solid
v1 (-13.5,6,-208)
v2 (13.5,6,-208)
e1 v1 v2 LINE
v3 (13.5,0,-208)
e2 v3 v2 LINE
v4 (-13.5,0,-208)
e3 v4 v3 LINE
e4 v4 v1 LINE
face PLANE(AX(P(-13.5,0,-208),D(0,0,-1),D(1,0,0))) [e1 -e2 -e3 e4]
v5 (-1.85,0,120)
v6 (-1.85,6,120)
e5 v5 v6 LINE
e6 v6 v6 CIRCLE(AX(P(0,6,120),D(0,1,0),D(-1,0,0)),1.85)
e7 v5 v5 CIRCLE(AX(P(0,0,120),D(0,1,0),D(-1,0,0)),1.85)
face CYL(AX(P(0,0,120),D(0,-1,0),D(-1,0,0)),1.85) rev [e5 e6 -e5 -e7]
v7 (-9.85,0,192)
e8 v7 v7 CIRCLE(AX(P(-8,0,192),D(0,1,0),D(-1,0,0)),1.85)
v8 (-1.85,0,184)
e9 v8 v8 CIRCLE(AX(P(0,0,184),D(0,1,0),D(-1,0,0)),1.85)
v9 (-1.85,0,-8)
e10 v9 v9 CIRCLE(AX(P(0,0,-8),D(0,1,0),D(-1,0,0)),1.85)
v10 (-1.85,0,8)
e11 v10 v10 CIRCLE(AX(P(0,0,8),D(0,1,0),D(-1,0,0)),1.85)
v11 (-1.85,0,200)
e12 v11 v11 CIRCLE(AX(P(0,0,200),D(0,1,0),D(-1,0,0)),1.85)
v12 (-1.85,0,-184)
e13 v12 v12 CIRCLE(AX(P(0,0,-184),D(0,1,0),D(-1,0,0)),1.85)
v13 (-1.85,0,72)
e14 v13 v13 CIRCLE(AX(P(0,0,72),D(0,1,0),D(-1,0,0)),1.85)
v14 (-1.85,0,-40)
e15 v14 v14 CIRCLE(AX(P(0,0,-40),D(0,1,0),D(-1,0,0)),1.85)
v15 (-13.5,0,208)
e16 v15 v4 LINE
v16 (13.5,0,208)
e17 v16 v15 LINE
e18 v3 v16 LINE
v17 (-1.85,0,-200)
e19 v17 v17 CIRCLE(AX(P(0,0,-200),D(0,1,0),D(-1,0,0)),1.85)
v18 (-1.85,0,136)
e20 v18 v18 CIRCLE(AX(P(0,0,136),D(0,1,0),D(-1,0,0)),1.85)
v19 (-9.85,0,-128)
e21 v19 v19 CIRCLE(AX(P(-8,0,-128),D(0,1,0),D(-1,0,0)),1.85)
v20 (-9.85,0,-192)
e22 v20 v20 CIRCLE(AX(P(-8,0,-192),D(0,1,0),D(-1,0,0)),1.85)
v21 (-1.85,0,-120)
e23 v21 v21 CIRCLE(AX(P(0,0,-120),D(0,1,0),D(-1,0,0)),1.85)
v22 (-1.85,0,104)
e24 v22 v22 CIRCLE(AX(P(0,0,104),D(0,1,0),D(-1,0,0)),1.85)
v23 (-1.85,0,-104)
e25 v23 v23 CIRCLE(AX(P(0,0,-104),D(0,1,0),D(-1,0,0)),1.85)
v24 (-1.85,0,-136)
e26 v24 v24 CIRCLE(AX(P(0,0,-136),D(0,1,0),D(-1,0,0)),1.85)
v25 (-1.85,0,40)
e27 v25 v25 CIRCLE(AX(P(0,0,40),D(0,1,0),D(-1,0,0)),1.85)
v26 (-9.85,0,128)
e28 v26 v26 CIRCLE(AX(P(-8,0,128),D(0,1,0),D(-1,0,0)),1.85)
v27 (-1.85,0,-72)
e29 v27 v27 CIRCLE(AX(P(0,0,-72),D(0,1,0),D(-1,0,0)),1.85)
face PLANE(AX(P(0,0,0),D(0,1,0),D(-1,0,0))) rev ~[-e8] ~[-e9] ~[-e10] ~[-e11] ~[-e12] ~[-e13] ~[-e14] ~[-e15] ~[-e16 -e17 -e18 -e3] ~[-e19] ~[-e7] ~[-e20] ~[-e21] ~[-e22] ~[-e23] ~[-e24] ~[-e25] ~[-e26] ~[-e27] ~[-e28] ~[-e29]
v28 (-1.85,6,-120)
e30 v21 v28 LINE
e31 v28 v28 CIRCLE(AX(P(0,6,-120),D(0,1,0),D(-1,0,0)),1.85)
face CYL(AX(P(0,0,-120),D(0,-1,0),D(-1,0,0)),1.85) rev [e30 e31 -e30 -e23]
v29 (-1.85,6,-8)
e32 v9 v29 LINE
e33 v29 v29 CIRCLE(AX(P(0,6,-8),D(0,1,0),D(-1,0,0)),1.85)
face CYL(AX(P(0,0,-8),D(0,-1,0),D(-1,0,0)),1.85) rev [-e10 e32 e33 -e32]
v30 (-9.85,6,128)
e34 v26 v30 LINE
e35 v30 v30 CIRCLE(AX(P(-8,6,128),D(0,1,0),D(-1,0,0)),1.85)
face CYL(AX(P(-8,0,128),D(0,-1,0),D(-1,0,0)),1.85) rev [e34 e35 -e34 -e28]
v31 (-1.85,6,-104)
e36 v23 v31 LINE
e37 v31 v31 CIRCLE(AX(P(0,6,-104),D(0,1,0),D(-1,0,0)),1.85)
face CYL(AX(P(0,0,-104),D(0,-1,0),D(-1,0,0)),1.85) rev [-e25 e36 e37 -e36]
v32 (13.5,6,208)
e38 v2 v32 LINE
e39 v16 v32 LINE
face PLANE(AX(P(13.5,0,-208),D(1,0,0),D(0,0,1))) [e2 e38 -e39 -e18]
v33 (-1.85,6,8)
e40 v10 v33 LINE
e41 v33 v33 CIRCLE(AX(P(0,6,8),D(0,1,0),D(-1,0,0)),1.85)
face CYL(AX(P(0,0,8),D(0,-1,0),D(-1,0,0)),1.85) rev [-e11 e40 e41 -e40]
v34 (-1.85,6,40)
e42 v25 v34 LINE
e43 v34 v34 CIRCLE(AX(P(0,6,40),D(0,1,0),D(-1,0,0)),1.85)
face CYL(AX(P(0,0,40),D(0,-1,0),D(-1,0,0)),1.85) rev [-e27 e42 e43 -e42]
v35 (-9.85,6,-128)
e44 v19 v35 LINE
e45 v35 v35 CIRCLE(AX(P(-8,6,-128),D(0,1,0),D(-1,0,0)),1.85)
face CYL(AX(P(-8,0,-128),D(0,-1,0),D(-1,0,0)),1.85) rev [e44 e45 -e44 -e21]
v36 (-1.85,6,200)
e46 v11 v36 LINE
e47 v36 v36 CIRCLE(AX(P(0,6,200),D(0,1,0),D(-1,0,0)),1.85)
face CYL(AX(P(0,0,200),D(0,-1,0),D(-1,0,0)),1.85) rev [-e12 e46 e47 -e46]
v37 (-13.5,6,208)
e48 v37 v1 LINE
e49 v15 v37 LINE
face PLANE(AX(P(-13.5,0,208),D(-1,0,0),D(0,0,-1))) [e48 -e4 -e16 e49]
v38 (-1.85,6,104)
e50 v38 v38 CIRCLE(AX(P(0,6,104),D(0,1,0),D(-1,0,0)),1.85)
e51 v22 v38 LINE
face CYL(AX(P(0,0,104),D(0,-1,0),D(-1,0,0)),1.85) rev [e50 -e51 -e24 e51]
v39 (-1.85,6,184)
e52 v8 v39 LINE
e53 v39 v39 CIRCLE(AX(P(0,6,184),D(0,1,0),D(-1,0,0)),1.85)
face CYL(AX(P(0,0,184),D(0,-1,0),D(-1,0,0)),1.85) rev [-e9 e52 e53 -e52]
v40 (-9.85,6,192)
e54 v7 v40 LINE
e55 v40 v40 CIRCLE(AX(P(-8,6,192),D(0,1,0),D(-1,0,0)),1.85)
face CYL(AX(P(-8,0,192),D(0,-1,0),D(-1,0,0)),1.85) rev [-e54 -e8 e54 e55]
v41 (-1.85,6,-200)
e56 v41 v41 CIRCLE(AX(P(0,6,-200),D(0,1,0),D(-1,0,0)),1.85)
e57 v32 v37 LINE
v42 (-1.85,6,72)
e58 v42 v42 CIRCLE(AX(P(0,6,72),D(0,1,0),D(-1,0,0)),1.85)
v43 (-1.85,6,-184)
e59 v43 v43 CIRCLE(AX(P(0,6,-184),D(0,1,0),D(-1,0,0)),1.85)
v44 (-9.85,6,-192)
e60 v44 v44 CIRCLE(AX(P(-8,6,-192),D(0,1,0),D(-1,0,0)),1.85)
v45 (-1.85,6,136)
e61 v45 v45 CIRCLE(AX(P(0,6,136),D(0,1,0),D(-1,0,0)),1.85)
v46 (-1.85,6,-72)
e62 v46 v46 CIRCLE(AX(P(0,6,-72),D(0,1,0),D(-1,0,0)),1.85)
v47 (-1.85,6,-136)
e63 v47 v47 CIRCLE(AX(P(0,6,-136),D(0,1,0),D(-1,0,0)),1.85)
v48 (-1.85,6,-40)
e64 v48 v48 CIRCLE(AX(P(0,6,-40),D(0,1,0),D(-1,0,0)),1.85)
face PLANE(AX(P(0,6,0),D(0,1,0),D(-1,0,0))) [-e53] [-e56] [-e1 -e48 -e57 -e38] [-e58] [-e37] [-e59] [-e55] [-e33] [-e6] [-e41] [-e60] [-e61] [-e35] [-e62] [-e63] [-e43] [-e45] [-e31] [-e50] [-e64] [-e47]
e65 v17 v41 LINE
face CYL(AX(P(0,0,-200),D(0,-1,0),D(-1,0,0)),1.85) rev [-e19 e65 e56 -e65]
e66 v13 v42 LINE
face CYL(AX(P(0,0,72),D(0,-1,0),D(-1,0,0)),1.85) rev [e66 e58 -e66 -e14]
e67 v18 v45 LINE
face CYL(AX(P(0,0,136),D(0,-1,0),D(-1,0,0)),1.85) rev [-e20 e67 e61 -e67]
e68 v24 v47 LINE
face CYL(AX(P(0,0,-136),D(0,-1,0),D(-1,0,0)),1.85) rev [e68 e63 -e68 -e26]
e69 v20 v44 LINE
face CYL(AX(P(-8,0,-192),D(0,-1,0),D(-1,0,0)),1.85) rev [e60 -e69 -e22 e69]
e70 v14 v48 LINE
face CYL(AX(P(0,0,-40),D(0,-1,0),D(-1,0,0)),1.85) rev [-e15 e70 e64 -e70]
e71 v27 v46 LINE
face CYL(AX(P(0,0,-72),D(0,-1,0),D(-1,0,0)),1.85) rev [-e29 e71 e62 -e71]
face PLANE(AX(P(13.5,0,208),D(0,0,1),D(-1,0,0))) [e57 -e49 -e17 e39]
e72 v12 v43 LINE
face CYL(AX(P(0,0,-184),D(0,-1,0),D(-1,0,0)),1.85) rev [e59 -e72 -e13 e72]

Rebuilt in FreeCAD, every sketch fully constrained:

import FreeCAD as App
import Part
import Sketcher


def add_polygon(sketch, points):
    """Adds a closed chain of lines whose ends are joined by coincident constraints."""
    first, n = sketch.GeometryCount, len(points)
    for a, b in zip(points, points[1:] + points[:1]):
        sketch.addGeometry(Part.LineSegment(App.Vector(*a, 0), App.Vector(*b, 0)), False)
    for i in range(n):
        sketch.addConstraint(Sketcher.Constraint("Coincident", first + i, 2, first + (i + 1) % n, 1))

doc = App.newDocument("Part")
body = doc.addObject("PartDesign::Body", "Body")

# Sketch on XZ plane
sketch1 = doc.addObject("Sketcher::SketchObject", "Sketch")
body.addObject(sketch1)
sketch1.AttachmentSupport = (doc.XZ_Plane, [""])
sketch1.MapMode = "FlatFace"
add_polygon(sketch1, [(-13.5, 208), (13.5, 208), (13.5, -208), (-13.5, -208)])  # lines 0-3
sketch1.addGeometry(Part.Circle(App.Vector(0, -200, 0), App.Vector(0, 0, 1), 1.85), False)  # 4
sketch1.addGeometry(Part.Circle(App.Vector(0, -184, 0), App.Vector(0, 0, 1), 1.85), False)  # 5
sketch1.addGeometry(Part.Circle(App.Vector(0, -136, 0), App.Vector(0, 0, 1), 1.85), False)  # 6
sketch1.addGeometry(Part.Circle(App.Vector(0, -120, 0), App.Vector(0, 0, 1), 1.85), False)  # 7
sketch1.addGeometry(Part.Circle(App.Vector(-8, -192, 0), App.Vector(0, 0, 1), 1.85), False)  # 8
sketch1.addGeometry(Part.Circle(App.Vector(-8, -128, 0), App.Vector(0, 0, 1), 1.85), False)  # 9
sketch1.addGeometry(Part.Circle(App.Vector(0, -104, 0), App.Vector(0, 0, 1), 1.85), False)  # 10
sketch1.addGeometry(Part.Circle(App.Vector(0, -72, 0), App.Vector(0, 0, 1), 1.85), False)  # 11
sketch1.addGeometry(Part.Circle(App.Vector(0, -40, 0), App.Vector(0, 0, 1), 1.85), False)  # 12
sketch1.addGeometry(Part.Circle(App.Vector(0, -8, 0), App.Vector(0, 0, 1), 1.85), False)  # 13
sketch1.addGeometry(Part.Circle(App.Vector(0, 8, 0), App.Vector(0, 0, 1), 1.85), False)  # 14
sketch1.addGeometry(Part.Circle(App.Vector(0, 40, 0), App.Vector(0, 0, 1), 1.85), False)  # 15
sketch1.addGeometry(Part.Circle(App.Vector(0, 72, 0), App.Vector(0, 0, 1), 1.85), False)  # 16
sketch1.addGeometry(Part.Circle(App.Vector(0, 104, 0), App.Vector(0, 0, 1), 1.85), False)  # 17
sketch1.addGeometry(Part.Circle(App.Vector(0, 120, 0), App.Vector(0, 0, 1), 1.85), False)  # 18
sketch1.addGeometry(Part.Circle(App.Vector(0, 136, 0), App.Vector(0, 0, 1), 1.85), False)  # 19
sketch1.addGeometry(Part.Circle(App.Vector(0, 184, 0), App.Vector(0, 0, 1), 1.85), False)  # 20
sketch1.addGeometry(Part.Circle(App.Vector(0, 200, 0), App.Vector(0, 0, 1), 1.85), False)  # 21
sketch1.addGeometry(Part.Circle(App.Vector(-8, 128, 0), App.Vector(0, 0, 1), 1.85), False)  # 22
sketch1.addGeometry(Part.Circle(App.Vector(-8, 192, 0), App.Vector(0, 0, 1), 1.85), False)  # 23
sketch1.addConstraint([
    Sketcher.Constraint("Horizontal", 0),
    Sketcher.Constraint("Vertical", 1),
    Sketcher.Constraint("Horizontal", 2),
    Sketcher.Constraint("Vertical", 3),
    Sketcher.Constraint("Equal", 4, 5),
    Sketcher.Constraint("Equal", 5, 6),
    Sketcher.Constraint("Equal", 6, 7),
    Sketcher.Constraint("Equal", 7, 8),
    Sketcher.Constraint("Equal", 8, 9),
    Sketcher.Constraint("Equal", 9, 10),
    Sketcher.Constraint("Equal", 10, 11),
    Sketcher.Constraint("Equal", 11, 12),
    Sketcher.Constraint("Equal", 12, 13),
    Sketcher.Constraint("Equal", 13, 14),
    Sketcher.Constraint("Equal", 14, 15),
    Sketcher.Constraint("Equal", 15, 16),
    Sketcher.Constraint("Equal", 16, 17),
    Sketcher.Constraint("Equal", 17, 18),
    Sketcher.Constraint("Equal", 18, 19),
    Sketcher.Constraint("Equal", 19, 20),
    Sketcher.Constraint("Equal", 20, 21),
    Sketcher.Constraint("Equal", 21, 22),
    Sketcher.Constraint("Equal", 22, 23),
    Sketcher.Constraint("Symmetric", 13, 3, 14, 3, -1, 1),
    Sketcher.Constraint("Symmetric", 12, 3, 15, 3, -1, 1),
    Sketcher.Constraint("Symmetric", 11, 3, 16, 3, -1, 1),
    Sketcher.Constraint("Symmetric", 10, 3, 17, 3, -1, 1),
    Sketcher.Constraint("Symmetric", 7, 3, 18, 3, -1, 1),
    Sketcher.Constraint("Symmetric", 6, 3, 19, 3, -1, 1),
    Sketcher.Constraint("Symmetric", 5, 3, 20, 3, -1, 1),
    Sketcher.Constraint("Symmetric", 4, 3, 21, 3, -1, 1),
    Sketcher.Constraint("Symmetric", 0, 2, 2, 2, -1, 1),
    Sketcher.Constraint("Symmetric", 9, 3, 22, 3, -1),
    Sketcher.Constraint("Symmetric", 8, 3, 23, 3, -1),
    Sketcher.Constraint("PointOnObject", 4, 3, -2),
    Sketcher.Constraint("PointOnObject", 5, 3, -2),
    Sketcher.Constraint("PointOnObject", 6, 3, -2),
    Sketcher.Constraint("PointOnObject", 7, 3, -2),
    Sketcher.Constraint("PointOnObject", 10, 3, -2),
    Sketcher.Constraint("PointOnObject", 11, 3, -2),
    Sketcher.Constraint("PointOnObject", 12, 3, -2),
    Sketcher.Constraint("PointOnObject", 13, 3, -2),
    Sketcher.Constraint("Vertical", 8, 3, 9, 3),
    Sketcher.Constraint("DistanceX", 0, 1, 0, 2, 27.0),
    Sketcher.Constraint("DistanceY", 1, 2, 1, 1, 416.0),
    Sketcher.Constraint("DistanceX", 8, 3, -1, 1, 8.0),
    Sketcher.Constraint("DistanceY", 13, 3, -1, 1, 8.0),
    Sketcher.Constraint("DistanceY", 4, 3, 5, 3, 16.0),
    Sketcher.Constraint("DistanceY", 5, 3, 6, 3, 48.0),
    Sketcher.Constraint("DistanceY", 6, 3, 7, 3, 16.0),
    Sketcher.Constraint("DistanceY", 4, 3, 8, 3, 8.0),
    Sketcher.Constraint("DistanceY", 6, 3, 9, 3, 8.0),
    Sketcher.Constraint("DistanceY", 7, 3, 10, 3, 16.0),
    Sketcher.Constraint("DistanceY", 10, 3, 11, 3, 32.0),
    Sketcher.Constraint("DistanceY", 11, 3, 12, 3, 32.0),
    Sketcher.Constraint("DistanceY", 12, 3, 13, 3, 32.0),
    Sketcher.Constraint("Diameter", 4, 3.7),
])
pad1 = doc.addObject("PartDesign::Pad", "Pad")
body.addObject(pad1)
pad1.Profile = sketch1
pad1.Length = 6
pad1.Reversed = True

doc.recompute()
